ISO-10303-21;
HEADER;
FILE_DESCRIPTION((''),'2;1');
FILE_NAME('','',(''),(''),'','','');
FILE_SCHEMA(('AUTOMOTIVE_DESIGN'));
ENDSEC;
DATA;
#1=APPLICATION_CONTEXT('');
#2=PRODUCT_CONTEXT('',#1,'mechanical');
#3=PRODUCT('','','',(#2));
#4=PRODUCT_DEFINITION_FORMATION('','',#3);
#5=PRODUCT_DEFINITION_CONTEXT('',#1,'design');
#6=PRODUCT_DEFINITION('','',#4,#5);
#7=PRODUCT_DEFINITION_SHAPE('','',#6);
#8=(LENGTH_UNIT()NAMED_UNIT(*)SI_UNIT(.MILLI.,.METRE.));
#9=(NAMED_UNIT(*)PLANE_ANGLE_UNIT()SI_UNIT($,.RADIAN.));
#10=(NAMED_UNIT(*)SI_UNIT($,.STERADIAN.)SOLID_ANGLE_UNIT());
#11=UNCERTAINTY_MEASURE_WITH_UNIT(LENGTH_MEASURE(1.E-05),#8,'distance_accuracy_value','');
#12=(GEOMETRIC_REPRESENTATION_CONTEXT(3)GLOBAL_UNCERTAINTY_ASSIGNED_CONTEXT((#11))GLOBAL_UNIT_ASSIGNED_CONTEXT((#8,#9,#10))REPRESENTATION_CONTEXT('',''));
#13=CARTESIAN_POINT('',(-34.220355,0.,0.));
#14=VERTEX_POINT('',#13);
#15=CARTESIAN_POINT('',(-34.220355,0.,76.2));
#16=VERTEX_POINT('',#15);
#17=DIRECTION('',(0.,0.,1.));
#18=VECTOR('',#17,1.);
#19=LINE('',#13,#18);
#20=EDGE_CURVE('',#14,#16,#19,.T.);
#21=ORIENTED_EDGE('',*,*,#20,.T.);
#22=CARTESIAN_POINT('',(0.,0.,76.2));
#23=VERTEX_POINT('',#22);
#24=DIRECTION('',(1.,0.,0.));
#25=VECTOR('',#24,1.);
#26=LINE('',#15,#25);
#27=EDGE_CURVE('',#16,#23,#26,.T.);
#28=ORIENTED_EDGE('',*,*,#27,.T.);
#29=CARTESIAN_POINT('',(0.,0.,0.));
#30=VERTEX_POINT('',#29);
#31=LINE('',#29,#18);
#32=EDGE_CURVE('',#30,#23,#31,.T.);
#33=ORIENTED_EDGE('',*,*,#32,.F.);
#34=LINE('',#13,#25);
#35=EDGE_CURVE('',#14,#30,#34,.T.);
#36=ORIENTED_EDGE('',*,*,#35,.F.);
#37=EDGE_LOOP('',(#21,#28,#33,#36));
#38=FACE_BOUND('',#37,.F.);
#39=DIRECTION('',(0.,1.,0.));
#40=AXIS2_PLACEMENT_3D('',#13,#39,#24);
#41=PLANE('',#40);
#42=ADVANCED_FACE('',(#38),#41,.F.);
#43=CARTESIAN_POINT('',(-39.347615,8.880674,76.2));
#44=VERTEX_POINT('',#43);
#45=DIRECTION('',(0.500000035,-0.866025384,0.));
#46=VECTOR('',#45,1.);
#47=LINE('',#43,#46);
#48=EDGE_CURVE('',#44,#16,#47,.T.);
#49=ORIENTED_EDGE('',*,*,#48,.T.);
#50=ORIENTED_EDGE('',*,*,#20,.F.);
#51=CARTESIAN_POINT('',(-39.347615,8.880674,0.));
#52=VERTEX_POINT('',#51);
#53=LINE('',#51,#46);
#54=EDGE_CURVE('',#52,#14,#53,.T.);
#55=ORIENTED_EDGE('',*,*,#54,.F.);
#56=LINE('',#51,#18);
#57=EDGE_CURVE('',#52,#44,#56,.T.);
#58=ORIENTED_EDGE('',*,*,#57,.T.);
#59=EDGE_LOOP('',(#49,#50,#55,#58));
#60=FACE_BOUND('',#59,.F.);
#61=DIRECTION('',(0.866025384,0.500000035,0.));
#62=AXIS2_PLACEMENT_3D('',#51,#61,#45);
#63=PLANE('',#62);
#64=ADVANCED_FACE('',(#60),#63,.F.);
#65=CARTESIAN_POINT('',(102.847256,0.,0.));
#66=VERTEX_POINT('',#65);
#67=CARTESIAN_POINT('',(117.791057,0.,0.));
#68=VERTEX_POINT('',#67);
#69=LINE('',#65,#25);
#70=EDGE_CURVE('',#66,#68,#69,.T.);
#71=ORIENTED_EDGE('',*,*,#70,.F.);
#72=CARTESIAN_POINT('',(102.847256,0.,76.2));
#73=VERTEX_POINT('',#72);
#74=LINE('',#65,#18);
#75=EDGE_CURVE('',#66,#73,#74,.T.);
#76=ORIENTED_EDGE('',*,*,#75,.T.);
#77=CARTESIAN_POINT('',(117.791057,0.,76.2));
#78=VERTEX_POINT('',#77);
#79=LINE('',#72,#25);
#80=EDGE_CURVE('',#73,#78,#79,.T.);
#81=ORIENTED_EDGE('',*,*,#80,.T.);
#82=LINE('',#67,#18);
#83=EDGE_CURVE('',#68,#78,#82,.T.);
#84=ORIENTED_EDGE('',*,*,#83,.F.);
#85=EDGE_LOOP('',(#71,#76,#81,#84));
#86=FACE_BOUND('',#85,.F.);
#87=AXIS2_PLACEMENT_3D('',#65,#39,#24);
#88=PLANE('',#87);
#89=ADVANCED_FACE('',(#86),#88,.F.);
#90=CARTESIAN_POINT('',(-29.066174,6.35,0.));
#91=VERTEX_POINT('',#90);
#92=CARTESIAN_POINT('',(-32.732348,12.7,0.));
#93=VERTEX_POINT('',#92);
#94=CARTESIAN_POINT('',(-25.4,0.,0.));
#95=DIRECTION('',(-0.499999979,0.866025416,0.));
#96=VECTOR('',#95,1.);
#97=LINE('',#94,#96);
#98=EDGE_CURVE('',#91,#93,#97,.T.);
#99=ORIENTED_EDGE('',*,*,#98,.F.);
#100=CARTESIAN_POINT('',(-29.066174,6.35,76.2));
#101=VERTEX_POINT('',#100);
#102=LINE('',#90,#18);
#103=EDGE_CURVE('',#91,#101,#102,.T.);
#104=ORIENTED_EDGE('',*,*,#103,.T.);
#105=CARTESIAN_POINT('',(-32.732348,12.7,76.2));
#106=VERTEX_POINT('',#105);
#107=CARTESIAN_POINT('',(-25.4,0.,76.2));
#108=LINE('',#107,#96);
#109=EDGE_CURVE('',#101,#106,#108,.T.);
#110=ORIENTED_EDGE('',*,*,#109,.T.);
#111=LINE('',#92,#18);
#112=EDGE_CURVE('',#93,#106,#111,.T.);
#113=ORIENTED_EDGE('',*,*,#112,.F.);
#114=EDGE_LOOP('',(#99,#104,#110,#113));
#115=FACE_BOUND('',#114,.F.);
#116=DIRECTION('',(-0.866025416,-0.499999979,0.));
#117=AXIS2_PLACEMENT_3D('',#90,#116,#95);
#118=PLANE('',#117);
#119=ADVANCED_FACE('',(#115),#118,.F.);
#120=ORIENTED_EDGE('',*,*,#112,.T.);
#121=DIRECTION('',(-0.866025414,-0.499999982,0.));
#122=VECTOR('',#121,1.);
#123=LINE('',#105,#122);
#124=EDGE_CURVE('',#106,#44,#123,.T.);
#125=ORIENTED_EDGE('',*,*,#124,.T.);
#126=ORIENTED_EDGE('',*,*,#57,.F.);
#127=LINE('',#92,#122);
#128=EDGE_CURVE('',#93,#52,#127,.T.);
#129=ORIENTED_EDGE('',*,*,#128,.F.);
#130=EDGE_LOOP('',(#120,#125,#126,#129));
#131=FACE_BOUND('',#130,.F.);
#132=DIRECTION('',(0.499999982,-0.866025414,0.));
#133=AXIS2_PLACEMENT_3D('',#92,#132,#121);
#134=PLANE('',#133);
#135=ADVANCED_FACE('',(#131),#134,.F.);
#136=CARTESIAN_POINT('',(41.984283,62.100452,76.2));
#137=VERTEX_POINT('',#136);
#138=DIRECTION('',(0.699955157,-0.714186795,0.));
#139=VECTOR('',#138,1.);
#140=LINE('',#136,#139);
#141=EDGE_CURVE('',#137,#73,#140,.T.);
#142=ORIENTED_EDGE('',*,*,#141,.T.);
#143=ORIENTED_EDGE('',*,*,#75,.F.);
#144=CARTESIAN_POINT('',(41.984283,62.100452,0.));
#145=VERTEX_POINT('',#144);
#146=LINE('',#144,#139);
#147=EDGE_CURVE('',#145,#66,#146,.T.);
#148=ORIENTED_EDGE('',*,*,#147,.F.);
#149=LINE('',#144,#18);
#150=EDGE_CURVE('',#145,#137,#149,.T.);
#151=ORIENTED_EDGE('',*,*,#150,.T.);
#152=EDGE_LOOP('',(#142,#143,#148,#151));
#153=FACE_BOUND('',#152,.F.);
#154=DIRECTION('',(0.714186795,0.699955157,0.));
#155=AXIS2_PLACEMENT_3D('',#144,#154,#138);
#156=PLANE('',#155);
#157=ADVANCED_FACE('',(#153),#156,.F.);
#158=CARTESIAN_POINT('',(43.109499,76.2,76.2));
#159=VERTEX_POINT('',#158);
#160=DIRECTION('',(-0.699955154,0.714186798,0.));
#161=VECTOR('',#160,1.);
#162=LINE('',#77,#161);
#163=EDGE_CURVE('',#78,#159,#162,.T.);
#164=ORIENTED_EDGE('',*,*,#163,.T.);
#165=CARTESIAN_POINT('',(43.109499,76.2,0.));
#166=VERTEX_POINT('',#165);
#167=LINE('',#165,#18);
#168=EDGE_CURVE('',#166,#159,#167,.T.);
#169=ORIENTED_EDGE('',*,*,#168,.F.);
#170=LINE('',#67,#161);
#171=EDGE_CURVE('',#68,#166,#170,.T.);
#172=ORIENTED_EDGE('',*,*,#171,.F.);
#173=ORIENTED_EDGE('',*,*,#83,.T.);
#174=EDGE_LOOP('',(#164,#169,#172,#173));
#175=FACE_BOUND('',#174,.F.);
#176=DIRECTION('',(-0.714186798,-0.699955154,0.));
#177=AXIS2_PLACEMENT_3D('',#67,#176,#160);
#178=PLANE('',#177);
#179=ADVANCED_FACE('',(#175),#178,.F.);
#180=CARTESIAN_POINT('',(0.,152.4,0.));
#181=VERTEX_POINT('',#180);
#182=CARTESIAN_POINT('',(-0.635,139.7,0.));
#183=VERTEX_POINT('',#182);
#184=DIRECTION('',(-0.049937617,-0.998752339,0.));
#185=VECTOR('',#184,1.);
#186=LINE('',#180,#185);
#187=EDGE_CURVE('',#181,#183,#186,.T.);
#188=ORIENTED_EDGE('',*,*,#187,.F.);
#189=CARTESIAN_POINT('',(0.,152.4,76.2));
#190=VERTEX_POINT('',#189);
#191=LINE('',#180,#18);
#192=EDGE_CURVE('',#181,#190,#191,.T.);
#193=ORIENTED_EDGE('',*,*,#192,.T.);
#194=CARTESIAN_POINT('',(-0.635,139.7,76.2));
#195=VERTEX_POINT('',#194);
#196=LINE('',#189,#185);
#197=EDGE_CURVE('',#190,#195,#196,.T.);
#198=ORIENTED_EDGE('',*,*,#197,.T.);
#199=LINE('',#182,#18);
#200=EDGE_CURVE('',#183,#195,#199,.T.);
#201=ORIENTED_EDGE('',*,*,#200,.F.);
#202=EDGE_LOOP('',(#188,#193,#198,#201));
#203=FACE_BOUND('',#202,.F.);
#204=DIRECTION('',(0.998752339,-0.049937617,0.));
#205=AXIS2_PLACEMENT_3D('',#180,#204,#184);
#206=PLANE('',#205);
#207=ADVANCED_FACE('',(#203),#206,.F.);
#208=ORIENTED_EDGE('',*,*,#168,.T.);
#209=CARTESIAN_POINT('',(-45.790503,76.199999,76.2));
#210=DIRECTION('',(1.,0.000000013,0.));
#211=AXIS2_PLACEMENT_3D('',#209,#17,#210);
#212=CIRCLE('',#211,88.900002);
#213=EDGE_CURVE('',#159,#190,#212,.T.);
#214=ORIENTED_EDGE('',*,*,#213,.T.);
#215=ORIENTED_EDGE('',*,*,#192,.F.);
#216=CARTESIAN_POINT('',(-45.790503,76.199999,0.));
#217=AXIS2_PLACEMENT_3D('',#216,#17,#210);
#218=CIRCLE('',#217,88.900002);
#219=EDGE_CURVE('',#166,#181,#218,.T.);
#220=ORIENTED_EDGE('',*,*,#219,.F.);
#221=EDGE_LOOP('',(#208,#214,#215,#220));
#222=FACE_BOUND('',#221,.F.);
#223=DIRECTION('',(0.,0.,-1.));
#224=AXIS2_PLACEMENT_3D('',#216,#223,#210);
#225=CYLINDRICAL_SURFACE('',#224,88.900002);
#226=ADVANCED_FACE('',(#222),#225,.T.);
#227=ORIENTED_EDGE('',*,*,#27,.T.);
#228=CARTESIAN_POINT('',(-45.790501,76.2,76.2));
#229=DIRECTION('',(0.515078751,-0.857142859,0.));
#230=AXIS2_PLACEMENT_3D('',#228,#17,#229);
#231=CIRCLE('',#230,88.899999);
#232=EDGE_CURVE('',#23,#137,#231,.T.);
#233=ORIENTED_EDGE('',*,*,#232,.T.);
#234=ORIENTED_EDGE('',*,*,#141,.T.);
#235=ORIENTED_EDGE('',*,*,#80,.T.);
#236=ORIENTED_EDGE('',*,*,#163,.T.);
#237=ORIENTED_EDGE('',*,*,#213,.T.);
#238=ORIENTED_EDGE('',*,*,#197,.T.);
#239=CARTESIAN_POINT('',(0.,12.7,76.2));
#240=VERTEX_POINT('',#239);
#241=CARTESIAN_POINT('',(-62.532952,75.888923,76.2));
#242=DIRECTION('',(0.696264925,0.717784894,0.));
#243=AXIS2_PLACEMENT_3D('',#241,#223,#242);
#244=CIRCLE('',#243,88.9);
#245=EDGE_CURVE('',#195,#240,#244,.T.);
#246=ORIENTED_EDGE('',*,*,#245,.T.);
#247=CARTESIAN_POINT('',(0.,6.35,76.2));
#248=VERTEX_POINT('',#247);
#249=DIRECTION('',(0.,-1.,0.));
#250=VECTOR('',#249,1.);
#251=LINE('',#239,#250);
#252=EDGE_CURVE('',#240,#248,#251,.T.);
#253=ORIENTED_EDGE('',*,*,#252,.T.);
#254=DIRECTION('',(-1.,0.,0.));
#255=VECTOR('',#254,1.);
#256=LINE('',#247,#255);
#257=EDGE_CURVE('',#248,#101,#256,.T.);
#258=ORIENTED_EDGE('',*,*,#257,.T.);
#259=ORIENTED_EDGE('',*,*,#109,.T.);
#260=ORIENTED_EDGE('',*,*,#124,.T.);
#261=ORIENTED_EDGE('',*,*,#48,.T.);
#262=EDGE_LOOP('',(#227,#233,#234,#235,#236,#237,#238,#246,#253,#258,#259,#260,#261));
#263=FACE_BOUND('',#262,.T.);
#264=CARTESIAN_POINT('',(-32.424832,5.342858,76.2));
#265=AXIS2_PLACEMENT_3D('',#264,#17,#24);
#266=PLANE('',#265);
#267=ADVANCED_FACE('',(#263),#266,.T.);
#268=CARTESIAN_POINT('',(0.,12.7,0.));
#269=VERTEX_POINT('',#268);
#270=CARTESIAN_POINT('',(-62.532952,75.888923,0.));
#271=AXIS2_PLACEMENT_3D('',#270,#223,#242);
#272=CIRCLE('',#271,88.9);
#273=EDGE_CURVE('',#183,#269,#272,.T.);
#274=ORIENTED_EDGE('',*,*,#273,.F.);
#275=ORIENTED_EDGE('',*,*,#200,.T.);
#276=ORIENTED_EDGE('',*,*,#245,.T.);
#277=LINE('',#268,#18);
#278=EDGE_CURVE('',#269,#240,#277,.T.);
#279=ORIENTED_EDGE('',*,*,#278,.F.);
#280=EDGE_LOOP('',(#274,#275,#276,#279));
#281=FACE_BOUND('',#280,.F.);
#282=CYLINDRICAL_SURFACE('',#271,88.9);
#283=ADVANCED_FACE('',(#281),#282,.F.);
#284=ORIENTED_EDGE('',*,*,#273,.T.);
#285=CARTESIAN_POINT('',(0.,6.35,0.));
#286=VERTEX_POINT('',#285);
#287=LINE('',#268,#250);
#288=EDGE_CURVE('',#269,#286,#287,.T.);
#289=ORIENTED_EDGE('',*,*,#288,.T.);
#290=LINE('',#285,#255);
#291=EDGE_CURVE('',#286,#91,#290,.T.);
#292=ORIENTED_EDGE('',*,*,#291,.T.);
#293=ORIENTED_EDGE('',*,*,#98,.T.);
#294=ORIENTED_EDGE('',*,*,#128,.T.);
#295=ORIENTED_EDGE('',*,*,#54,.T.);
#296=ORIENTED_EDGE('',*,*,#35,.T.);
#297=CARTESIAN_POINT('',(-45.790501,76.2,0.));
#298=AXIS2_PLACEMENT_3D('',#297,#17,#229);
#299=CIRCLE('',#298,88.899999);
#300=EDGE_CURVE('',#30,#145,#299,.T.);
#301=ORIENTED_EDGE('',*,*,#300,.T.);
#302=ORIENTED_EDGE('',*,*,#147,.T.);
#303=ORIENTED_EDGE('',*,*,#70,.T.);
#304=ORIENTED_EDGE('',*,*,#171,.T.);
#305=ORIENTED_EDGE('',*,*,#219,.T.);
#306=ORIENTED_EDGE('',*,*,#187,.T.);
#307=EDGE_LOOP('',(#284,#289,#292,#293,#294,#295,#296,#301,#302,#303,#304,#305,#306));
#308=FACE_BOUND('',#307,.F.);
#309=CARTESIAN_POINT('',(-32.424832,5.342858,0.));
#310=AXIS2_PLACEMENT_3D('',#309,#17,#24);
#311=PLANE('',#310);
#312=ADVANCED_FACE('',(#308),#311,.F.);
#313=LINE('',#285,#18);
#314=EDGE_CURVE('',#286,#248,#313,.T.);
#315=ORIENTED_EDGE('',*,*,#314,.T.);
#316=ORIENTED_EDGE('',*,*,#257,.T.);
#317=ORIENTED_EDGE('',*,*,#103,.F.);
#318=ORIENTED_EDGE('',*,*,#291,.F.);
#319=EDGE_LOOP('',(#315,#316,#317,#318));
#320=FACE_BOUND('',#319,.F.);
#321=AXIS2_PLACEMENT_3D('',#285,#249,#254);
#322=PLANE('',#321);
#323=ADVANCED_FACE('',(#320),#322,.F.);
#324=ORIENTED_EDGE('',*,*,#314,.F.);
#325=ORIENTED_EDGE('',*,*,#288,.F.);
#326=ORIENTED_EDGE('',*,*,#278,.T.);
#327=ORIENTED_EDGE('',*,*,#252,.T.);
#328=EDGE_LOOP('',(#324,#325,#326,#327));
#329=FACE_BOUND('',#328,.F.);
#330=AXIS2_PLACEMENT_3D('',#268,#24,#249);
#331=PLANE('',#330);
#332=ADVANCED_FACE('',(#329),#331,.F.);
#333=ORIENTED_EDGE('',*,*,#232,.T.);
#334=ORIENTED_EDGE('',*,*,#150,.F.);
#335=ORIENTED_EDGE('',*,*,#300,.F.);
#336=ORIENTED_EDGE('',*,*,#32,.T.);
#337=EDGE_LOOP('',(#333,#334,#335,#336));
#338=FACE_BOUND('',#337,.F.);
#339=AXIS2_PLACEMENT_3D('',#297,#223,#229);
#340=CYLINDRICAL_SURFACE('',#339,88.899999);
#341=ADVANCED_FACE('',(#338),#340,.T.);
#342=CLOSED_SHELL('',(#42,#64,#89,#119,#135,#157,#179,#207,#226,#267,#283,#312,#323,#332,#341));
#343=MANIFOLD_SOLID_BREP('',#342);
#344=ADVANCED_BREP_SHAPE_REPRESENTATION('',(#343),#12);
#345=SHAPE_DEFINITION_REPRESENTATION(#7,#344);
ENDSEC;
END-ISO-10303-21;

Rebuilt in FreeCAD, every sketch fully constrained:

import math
import FreeCAD as App
import Part
import Sketcher
from FreeCAD import Vector
Q = App.Units.Quantity

doc = App.newDocument("Part")
body = doc.addObject("PartDesign::Body", "Body")

# Sketch on XY plane
sketch1 = doc.addObject("Sketcher::SketchObject", "Sketch")
body.addObject(sketch1)
sketch1.AttachmentSupport = (doc.XY_Plane, [""])
sketch1.MapMode = "FlatFace"
sketch1.addGeometry(Part.LineSegment(Vector(-34, 0, 0), Vector(0, 0, 0)), False)
sketch1.addGeometry(Part.ArcOfCircle(Part.Circle(Vector(-46, 76, 0), Vector(0, 0, 1), 89), math.radians(-59), math.radians(-9)), False)
sketch1.addGeometry(Part.LineSegment(Vector(42, 62, 0), Vector(103, 0, 0)), False)
sketch1.addGeometry(Part.LineSegment(Vector(103, 0, 0), Vector(118, 0, 0)), False)
sketch1.addGeometry(Part.LineSegment(Vector(118, 0, 0), Vector(43, 76, 0)), False)
sketch1.addGeometry(Part.ArcOfCircle(Part.Circle(Vector(-46, 76, 0), Vector(0, 0, 1), 89), math.radians(0), math.radians(59)), False)
sketch1.addGeometry(Part.LineSegment(Vector(0, 152, 0), Vector(-1, 140, 0)), False)
sketch1.addGeometry(Part.ArcOfCircle(Part.Circle(Vector(-63, 76, 0), Vector(0, 0, 1), 89), math.radians(-45), math.radians(46)), False)
sketch1.addGeometry(Part.LineSegment(Vector(0, 13, 0), Vector(0, 6, 0)), False)
sketch1.addGeometry(Part.LineSegment(Vector(0, 6, 0), Vector(-29, 6, 0)), False)
sketch1.addGeometry(Part.LineSegment(Vector(-29, 6, 0), Vector(-33, 13, 0)), False)
sketch1.addGeometry(Part.LineSegment(Vector(-33, 13, 0), Vector(-39, 9, 0)), False)
sketch1.addGeometry(Part.LineSegment(Vector(-39, 9, 0), Vector(-34, 0, 0)), False)
sketch1.addConstraint(Sketcher.Constraint("Coincident", 0, 2, 1, 1))
sketch1.addConstraint(Sketcher.Constraint("Coincident", 1, 2, 2, 1))
sketch1.addConstraint(Sketcher.Constraint("Coincident", 2, 2, 3, 1))
sketch1.addConstraint(Sketcher.Constraint("Coincident", 3, 2, 4, 1))
sketch1.addConstraint(Sketcher.Constraint("Coincident", 4, 2, 5, 1))
sketch1.addConstraint(Sketcher.Constraint("Coincident", 5, 2, 6, 1))
sketch1.addConstraint(Sketcher.Constraint("Coincident", 6, 2, 7, 2))
sketch1.addConstraint(Sketcher.Constraint("Coincident", 7, 1, 8, 1))
sketch1.addConstraint(Sketcher.Constraint("Coincident", 8, 2, 9, 1))
sketch1.addConstraint(Sketcher.Constraint("Coincident", 9, 2, 10, 1))
sketch1.addConstraint(Sketcher.Constraint("Coincident", 10, 2, 11, 1))
sketch1.addConstraint(Sketcher.Constraint("Coincident", 11, 2, 12, 1))
sketch1.addConstraint(Sketcher.Constraint("Coincident", 12, 2, 0, 1))
sketch1.addConstraint(Sketcher.Constraint("Horizontal", 0))
sketch1.addConstraint(Sketcher.Constraint("Horizontal", 3))
sketch1.addConstraint(Sketcher.Constraint("Vertical", 8))
sketch1.addConstraint(Sketcher.Constraint("Horizontal", 9))
sketch1.addConstraint(Sketcher.Constraint("Coincident", 0, 2, -1, 1))
sketch1.addConstraint(Sketcher.Constraint("Coincident", 5, 3, 1, 3))
sketch1.addConstraint(Sketcher.Constraint("Equal", 5, 7))
sketch1.addConstraint(Sketcher.Constraint("PointOnObject", 2, 2, -1))
sketch1.addConstraint(Sketcher.Constraint("PointOnObject", 5, 2, -2))
sketch1.addConstraint(Sketcher.Constraint("PointOnObject", 7, 1, -2))
sketch1.addConstraint(Sketcher.Constraint("Parallel", 2, 4))
sketch1.addConstraint(Sketcher.Constraint("Perpendicular", 10, 11))
sketch1.addConstraint(Sketcher.Constraint("Perpendicular", 11, 12))
sketch1.addConstraint(Sketcher.Constraint("Horizontal", 5, 3, 4, 2))
sketch1.addConstraint(Sketcher.Constraint("Horizontal", 7, 1, 10, 2))
sketch1.addConstraint(Sketcher.Constraint("Radius", 1, Q("3.5 in")))
sketch1.addConstraint(Sketcher.Constraint("Radius", 5, Q("3.5000001 in")))
sketch1.addConstraint(Sketcher.Constraint("DistanceY", -1, 1, 1, 3, Q("3 in")))
sketch1.addConstraint(Sketcher.Constraint("Angle", 10, Q("119.999999 deg")))
sketch1.addConstraint(Sketcher.Constraint("DistanceY", 8, 2, 8, 1, Q("0.25 in")))
sketch1.addConstraint(Sketcher.Constraint("DistanceY", -1, 1, 6, 2, Q("5.5 in")))
sketch1.addConstraint(Sketcher.Constraint("DistanceY", -1, 1, 7, 1, Q("0.5 in")))
sketch1.addConstraint(Sketcher.Constraint("DistanceX", 6, 2, -1, 1, Q("0.025 in")))
sketch1.addConstraint(Sketcher.Constraint("DistanceX", 3, 1, 3, 2, 14.943801))
sketch1.addConstraint(Sketcher.Constraint("Distance", 12, 10.254519))
sketch1.addConstraint(Sketcher.Constraint("DistanceX", 0, 1, 0, 2, 34.220355))
sketch1.addConstraint(Sketcher.Constraint("DistanceX", 5, 3, 2, 2, 148.637759))
pad1 = doc.addObject("PartDesign::Pad", "Pad")
body.addObject(pad1)
pad1.Profile = sketch1
pad1.Length = Q("3 in")

doc.recompute()
